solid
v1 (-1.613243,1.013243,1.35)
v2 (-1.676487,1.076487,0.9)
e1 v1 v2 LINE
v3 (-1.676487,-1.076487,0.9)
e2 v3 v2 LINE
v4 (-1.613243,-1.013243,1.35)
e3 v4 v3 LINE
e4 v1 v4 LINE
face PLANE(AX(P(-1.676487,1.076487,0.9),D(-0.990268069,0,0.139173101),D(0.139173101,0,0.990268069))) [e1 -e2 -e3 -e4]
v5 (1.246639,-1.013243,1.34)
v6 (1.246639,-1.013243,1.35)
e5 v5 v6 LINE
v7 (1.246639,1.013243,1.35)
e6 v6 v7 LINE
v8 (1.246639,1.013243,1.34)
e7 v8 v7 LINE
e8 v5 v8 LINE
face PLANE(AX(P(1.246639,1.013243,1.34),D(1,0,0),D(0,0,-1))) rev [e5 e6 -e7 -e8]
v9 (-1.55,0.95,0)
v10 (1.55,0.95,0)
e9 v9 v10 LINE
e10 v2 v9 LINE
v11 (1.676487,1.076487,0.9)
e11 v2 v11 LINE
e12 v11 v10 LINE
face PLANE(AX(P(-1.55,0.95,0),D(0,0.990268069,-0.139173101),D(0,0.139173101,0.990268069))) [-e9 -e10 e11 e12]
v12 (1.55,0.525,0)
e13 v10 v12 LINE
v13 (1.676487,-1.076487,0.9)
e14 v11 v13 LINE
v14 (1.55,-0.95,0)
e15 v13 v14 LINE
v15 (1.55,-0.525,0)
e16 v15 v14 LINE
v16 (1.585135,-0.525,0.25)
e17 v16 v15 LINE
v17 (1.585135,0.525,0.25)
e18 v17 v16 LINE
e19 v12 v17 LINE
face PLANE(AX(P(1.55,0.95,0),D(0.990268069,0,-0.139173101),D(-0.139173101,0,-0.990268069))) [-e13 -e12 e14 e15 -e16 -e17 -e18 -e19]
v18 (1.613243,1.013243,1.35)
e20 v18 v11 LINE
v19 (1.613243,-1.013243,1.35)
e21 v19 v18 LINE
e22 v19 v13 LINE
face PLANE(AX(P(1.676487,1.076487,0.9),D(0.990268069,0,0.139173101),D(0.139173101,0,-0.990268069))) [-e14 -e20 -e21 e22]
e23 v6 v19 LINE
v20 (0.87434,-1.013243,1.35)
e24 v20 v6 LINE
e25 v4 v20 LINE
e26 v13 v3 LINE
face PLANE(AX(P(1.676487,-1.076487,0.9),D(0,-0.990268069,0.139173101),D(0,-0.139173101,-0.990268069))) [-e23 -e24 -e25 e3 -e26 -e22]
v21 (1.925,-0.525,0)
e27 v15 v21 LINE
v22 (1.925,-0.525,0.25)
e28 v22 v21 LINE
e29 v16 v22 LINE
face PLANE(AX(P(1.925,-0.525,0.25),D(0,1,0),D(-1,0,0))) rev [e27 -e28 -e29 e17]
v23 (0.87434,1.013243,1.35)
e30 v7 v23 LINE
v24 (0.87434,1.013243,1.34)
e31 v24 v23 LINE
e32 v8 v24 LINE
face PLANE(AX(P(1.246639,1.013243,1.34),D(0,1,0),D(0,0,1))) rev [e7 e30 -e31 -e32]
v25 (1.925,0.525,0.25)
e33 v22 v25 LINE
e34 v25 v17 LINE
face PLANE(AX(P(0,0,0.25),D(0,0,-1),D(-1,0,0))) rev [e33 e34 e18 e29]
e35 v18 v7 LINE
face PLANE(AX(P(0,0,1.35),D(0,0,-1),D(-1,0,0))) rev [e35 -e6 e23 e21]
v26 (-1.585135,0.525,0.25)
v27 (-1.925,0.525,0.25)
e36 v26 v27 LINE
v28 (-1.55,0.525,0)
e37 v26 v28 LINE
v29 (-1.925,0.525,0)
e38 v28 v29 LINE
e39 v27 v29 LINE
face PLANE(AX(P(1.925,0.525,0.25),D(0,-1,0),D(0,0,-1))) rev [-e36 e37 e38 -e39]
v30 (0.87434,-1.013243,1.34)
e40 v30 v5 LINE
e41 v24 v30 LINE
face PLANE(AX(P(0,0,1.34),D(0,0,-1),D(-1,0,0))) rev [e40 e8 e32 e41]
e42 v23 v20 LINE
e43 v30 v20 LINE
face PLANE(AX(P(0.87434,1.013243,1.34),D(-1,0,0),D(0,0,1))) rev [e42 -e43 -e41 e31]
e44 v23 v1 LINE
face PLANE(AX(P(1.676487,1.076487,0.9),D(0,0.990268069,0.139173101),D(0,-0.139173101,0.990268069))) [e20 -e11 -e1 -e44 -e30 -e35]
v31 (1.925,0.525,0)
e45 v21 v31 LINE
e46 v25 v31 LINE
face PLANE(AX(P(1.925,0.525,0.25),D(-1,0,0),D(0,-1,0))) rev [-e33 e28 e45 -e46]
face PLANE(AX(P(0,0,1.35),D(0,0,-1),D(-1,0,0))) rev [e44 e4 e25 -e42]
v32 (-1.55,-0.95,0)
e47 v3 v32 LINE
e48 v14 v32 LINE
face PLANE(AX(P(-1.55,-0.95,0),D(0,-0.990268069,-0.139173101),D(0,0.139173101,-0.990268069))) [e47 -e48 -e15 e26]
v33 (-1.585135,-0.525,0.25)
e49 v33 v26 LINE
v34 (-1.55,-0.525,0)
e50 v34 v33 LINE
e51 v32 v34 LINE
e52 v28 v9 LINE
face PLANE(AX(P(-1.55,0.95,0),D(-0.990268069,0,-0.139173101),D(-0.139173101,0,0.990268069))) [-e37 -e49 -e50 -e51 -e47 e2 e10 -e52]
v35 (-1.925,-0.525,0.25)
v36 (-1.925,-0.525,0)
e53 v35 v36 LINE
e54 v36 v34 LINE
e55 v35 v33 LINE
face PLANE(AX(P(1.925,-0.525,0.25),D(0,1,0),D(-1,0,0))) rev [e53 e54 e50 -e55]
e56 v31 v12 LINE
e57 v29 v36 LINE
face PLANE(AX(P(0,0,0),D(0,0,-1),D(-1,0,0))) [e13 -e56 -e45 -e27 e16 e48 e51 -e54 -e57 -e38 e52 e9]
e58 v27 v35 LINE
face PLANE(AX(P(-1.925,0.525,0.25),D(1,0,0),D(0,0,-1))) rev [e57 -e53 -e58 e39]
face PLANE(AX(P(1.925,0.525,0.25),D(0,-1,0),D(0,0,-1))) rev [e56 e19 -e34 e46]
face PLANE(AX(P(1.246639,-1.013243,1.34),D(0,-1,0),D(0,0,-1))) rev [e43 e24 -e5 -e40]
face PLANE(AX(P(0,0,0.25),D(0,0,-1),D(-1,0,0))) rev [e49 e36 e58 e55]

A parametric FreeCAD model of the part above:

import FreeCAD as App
import Part
import Sketcher

V = App.Vector


def faces_at(feature, points):
    """Names of the faces that lie closest to the given points."""
    faces = feature.Shape.Faces
    near = lambda p: min(range(len(faces)), key=lambda i: faces[i].distToShape(Part.Vertex(*p))[0])
    return sorted({f"Face{near(p) + 1}" for p in points})

doc = App.newDocument("Part")
body = doc.addObject("PartDesign::Body", "Body")

sketch1 = body.newObject("Sketcher::SketchObject", "Sketch")
sketch1.AttachmentSupport = (doc.getObject("XY_Plane"), [""])
sketch1.MapMode = "FlatFace"
sketch1.addGeometry([
    Part.LineSegment(V(-1.9, 0.5, 0), V(-1.9, -0.5, 0)),
    Part.LineSegment(V(-1.9, -0.5, 0), V(1.9, -0.5, 0)),
    Part.LineSegment(V(1.9, -0.5, 0), V(1.9, 0.5, 0)),
    Part.LineSegment(V(1.9, 0.5, 0), V(-1.9, 0.5, 0)),
], False)
sketch1.addConstraint([
    Sketcher.Constraint("Coincident", 0, 2, 1, 1),
    Sketcher.Constraint("Coincident", 1, 2, 2, 1),
    Sketcher.Constraint("Coincident", 2, 2, 3, 1),
    Sketcher.Constraint("Coincident", 3, 2, 0, 1),
    Sketcher.Constraint("Vertical", 0),
    Sketcher.Constraint("Horizontal", 1),
    Sketcher.Constraint("Vertical", 2),
    Sketcher.Constraint("Horizontal", 3),
    Sketcher.Constraint("Symmetric", 0, 2, 2, 2, -1, 1),
    Sketcher.Constraint("DistanceX", 1, 1, 1, 2, 3.85),
    Sketcher.Constraint("DistanceY", 0, 2, 0, 1, 1.05),
])
pad1 = body.newObject("PartDesign::Pad", "Pad")
pad1.Profile = sketch1
pad1.Length = 0.25
body2 = doc.addObject("PartDesign::Body", "Body001")

sketch2 = body2.newObject("Sketcher::SketchObject", "Sketch001")
sketch2.AttachmentSupport = (doc.getObject("XY_Plane001"), [""])
sketch2.MapMode = "FlatFace"
sketch2.addGeometry([
    Part.LineSegment(V(1.6, 0.9, 0), V(1.6, -0.9, 0)),
    Part.LineSegment(V(1.6, -0.9, 0), V(-1.6, -0.9, 0)),
    Part.LineSegment(V(-1.6, -0.9, 0), V(-1.6, 0.9, 0)),
    Part.LineSegment(V(-1.6, 0.9, 0), V(1.6, 0.9, 0)),
], False)
sketch2.addConstraint([
    Sketcher.Constraint("Coincident", 0, 2, 1, 1),
    Sketcher.Constraint("Coincident", 1, 2, 2, 1),
    Sketcher.Constraint("Coincident", 2, 2, 3, 1),
    Sketcher.Constraint("Coincident", 3, 2, 0, 1),
    Sketcher.Constraint("Vertical", 0),
    Sketcher.Constraint("Horizontal", 1),
    Sketcher.Constraint("Vertical", 2),
    Sketcher.Constraint("Horizontal", 3),
    Sketcher.Constraint("Symmetric", 0, 2, 2, 2, -1, 1),
    Sketcher.Constraint("DistanceX", 1, 2, 1, 1, 3.1),
    Sketcher.Constraint("DistanceY", 0, 2, 0, 1, 1.9),
])
pad2 = body2.newObject("PartDesign::Pad", "Pad001")
pad2.Profile = sketch2
pad2.Length = 0.9
doc.recompute()

draft = body2.newObject("PartDesign::Draft", "Draft")
draft.Base = (pad2, faces_at(pad2, [
    (0, 0.95, 0.45),
    (1.55, 0, 0.45),
    (0, -0.95, 0.45),
    (-1.55, 0, 0.45),
]))
draft.NeutralPlane = (doc.getObject("XY_Plane001"), [""])
draft.Angle = 8
draft.Reversed = True
doc.recompute()

boolean = body.newObject("PartDesign::Boolean", "Boolean")
boolean.Type = "Fuse"
boolean.addObjects([body2])

sketch3 = body.newObject("Sketcher::SketchObject", "Sketch002")
sketch3.AttachmentSupport = (doc.getObject("XY_Plane"), [""])
sketch3.MapMode = "FlatFace"
sketch3.AttachmentOffset = App.Placement(V(0, 0, 0.9), App.Rotation())
sketch3.addGeometry([
    Part.LineSegment(V(-1.7, 1.1, 0), V(-1.7, -1.1, 0)),
    Part.LineSegment(V(-1.7, -1.1, 0), V(1.7, -1.1, 0)),
    Part.LineSegment(V(1.7, -1.1, 0), V(1.7, 1.1, 0)),
    Part.LineSegment(V(1.7, 1.1, 0), V(-1.7, 1.1, 0)),
], False)
sketch3.addConstraint([
    Sketcher.Constraint("Coincident", 0, 2, 1, 1),
    Sketcher.Constraint("Coincident", 1, 2, 2, 1),
    Sketcher.Constraint("Coincident", 2, 2, 3, 1),
    Sketcher.Constraint("Coincident", 3, 2, 0, 1),
    Sketcher.Constraint("Vertical", 0),
    Sketcher.Constraint("Horizontal", 1),
    Sketcher.Constraint("Vertical", 2),
    Sketcher.Constraint("Horizontal", 3),
    Sketcher.Constraint("Symmetric", 0, 2, 2, 2, -1, 1),
    Sketcher.Constraint("DistanceX", 1, 1, 1, 2, 3.352974),
    Sketcher.Constraint("DistanceY", 0, 2, 0, 1, 2.152974),
])
pad3 = body.newObject("PartDesign::Pad", "Pad002")
pad3.Profile = sketch3
pad3.Length = 0.45
pad3.TaperAngle = -8

sketch4 = body.newObject("Sketcher::SketchObject", "Sketch003")
sketch4.AttachmentSupport = (doc.getObject("XY_Plane"), [""])
sketch4.MapMode = "FlatFace"
sketch4.AttachmentOffset = App.Placement(V(0, 0, 1.35), App.Rotation())
sketch4.addGeometry([
    Part.LineSegment(V(0.87, 1.01, 0), V(0.87, -1.01, 0)),
    Part.LineSegment(V(0.87, -1.01, 0), V(1.25, -1.01, 0)),
    Part.LineSegment(V(1.25, -1.01, 0), V(1.25, 1.01, 0)),
    Part.LineSegment(V(1.25, 1.01, 0), V(0.87, 1.01, 0)),
], False)
sketch4.addConstraint([
    Sketcher.Constraint("Coincident", 0, 2, 1, 1),
    Sketcher.Constraint("Coincident", 1, 2, 2, 1),
    Sketcher.Constraint("Coincident", 2, 2, 3, 1),
    Sketcher.Constraint("Coincident", 3, 2, 0, 1),
    Sketcher.Constraint("Vertical", 0),
    Sketcher.Constraint("Horizontal", 1),
    Sketcher.Constraint("Vertical", 2),
    Sketcher.Constraint("Horizontal", 3),
    Sketcher.Constraint("DistanceX", 1, 1, 1, 2, 0.3723),
    Sketcher.Constraint("DistanceY", 0, 2, 0, 1, 2.026487),
    Sketcher.Constraint("DistanceX", -1, 1, 0, 2, 0.87434),
    Sketcher.Constraint("DistanceY", 0, 2, -1, 1, 1.013243),
])
pocket1 = body.newObject("PartDesign::Pocket", "Pocket")
pocket1.Profile = sketch4
pocket1.Length = 0.01

doc.recompute()
